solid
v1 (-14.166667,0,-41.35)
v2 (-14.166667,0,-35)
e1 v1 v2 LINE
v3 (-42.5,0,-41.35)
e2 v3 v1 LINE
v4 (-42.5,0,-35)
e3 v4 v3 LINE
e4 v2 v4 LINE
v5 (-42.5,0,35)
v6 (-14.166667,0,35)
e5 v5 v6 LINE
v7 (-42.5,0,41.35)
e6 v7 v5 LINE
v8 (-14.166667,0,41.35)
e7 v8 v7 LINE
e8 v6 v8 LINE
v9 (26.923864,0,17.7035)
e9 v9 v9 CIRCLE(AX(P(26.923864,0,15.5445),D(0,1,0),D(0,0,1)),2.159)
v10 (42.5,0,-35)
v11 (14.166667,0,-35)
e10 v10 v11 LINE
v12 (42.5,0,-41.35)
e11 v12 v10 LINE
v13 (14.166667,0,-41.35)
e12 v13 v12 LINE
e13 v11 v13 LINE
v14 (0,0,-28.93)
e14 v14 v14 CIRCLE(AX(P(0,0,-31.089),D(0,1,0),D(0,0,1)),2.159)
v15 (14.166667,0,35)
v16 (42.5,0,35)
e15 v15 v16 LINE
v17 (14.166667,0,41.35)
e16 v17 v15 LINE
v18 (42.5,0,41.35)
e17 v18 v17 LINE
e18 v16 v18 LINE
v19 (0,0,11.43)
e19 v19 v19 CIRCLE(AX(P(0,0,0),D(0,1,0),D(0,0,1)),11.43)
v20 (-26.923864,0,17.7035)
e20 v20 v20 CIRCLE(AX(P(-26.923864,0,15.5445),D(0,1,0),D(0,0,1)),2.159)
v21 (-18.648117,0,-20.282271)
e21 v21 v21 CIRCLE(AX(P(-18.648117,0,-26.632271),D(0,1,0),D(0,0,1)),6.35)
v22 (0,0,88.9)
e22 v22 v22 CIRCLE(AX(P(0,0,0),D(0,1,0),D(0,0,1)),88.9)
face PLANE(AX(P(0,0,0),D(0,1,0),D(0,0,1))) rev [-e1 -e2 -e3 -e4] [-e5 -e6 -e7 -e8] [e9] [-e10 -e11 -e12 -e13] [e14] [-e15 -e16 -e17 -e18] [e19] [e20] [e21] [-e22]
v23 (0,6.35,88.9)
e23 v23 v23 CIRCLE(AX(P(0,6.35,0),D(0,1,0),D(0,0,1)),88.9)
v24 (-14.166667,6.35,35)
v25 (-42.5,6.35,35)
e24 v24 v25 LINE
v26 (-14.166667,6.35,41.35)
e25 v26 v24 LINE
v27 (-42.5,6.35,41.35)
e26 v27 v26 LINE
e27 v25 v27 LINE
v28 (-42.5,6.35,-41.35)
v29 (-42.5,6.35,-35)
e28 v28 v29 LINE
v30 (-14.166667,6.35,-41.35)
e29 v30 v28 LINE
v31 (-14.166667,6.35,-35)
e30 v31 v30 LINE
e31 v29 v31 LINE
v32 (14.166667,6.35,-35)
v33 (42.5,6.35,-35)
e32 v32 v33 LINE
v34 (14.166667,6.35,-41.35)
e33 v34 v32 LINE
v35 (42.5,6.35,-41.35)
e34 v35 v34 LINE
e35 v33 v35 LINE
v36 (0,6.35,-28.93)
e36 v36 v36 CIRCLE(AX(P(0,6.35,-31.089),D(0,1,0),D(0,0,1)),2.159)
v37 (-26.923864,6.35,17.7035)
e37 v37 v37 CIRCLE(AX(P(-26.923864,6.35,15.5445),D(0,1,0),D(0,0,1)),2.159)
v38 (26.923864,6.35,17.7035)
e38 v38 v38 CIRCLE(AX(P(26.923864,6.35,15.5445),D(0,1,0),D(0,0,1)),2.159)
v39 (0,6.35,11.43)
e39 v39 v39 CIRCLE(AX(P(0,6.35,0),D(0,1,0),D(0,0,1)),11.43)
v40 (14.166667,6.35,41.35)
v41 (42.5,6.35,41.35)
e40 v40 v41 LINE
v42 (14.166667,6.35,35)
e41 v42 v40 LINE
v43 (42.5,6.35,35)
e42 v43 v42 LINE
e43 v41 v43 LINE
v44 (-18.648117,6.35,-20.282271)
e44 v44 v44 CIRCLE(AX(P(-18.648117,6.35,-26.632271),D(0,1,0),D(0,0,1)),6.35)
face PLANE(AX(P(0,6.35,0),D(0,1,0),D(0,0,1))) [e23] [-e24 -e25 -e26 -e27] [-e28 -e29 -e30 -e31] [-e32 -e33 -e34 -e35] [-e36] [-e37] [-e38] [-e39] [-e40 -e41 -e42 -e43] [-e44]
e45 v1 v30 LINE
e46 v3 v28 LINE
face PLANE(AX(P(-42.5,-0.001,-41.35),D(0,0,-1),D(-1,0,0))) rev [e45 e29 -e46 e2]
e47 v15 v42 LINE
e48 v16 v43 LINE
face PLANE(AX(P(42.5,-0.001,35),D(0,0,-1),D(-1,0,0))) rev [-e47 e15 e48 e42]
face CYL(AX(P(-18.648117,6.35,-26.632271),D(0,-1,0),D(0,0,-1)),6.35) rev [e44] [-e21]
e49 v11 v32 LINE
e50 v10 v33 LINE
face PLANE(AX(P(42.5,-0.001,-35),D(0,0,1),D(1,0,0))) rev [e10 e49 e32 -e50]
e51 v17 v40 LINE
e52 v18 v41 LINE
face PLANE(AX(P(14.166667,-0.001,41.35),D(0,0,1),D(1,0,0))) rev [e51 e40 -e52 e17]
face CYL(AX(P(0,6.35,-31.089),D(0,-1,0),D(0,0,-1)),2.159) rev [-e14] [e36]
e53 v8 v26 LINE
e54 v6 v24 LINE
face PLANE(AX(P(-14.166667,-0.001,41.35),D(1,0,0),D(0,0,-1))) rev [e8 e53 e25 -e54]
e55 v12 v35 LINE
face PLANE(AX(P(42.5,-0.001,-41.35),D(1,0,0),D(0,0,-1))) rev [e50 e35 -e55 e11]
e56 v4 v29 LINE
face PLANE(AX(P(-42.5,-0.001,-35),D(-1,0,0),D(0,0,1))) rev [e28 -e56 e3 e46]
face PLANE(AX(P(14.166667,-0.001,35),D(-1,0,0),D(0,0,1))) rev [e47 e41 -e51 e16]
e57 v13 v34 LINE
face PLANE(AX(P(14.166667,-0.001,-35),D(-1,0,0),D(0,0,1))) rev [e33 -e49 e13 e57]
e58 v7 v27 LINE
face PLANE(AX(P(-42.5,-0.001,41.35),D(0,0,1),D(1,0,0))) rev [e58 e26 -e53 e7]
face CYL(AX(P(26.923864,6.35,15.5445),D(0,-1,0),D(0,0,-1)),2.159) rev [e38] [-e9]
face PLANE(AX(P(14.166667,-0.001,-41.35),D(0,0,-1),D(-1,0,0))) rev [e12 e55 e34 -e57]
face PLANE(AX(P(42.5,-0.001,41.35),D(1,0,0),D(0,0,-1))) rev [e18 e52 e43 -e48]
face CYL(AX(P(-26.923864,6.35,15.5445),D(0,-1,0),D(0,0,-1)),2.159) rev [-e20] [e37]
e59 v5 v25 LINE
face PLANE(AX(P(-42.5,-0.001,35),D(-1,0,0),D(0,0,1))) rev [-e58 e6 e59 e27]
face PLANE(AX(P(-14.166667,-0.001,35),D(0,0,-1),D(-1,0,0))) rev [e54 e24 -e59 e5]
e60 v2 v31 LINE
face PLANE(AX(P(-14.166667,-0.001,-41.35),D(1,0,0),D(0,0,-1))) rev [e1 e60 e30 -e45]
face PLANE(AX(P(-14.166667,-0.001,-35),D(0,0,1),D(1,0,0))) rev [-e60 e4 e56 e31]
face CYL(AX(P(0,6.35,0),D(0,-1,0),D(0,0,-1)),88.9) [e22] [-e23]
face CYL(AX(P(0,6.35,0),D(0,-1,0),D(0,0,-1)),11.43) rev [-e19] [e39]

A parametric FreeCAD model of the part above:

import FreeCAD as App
import Part
import Sketcher
from FreeCAD import Vector
Q = App.Units.Quantity


def add_polygon(sketch, points):
    """Adds a closed chain of lines whose ends are joined by coincident constraints."""
    first, n = sketch.GeometryCount, len(points)
    for a, b in zip(points, points[1:] + points[:1]):
        sketch.addGeometry(Part.LineSegment(App.Vector(*a, 0), App.Vector(*b, 0)), False)
    for i in range(n):
        sketch.addConstraint(Sketcher.Constraint("Coincident", first + i, 2, first + (i + 1) % n, 1))

doc = App.newDocument("Part")
body = doc.addObject("PartDesign::Body", "Body")

# Sketch on XZ plane
sketch1 = body.newObject("Sketcher::SketchObject", "Sketch")
sketch1.AttachmentSupport = (doc.getObject("XZ_Plane"), [""])
sketch1.MapMode = "FlatFace"
sketch1.addGeometry(Part.Circle(Vector(0, 0, 0), Vector(0, 0, 1), 88.9), False)
sketch1.addGeometry(Part.Circle(Vector(-18.6, -26.6, 0), Vector(0, 0, 1), 6.3), False)
sketch1.addGeometry(Part.Circle(Vector(0, -31.1, 0), Vector(0, 0, 1), 2.2), False)
sketch1.addGeometry(Part.Circle(Vector(-26.9, 15.5, 0), Vector(0, 0, 1), 2.2), False)
sketch1.addGeometry(Part.Circle(Vector(0, 0, 0), Vector(0, 0, 1), 11.4), False)
sketch1.addGeometry(Part.Circle(Vector(26.9, 15.5, 0), Vector(0, 0, 1), 2.2), False)
sketch1.addConstraint(Sketcher.Constraint("Coincident", 0, 3, -1, 1))
sketch1.addConstraint(Sketcher.Constraint("Coincident", 4, 3, -1, 1))
sketch1.addConstraint(Sketcher.Constraint("Equal", 2, 3))
sketch1.addConstraint(Sketcher.Constraint("Equal", 3, 5))
sketch1.addConstraint(Sketcher.Constraint("Symmetric", 3, 3, 5, 3, -2))
sketch1.addConstraint(Sketcher.Constraint("PointOnObject", 2, 3, -2))
sketch1.addConstraint(Sketcher.Constraint("Diameter", 0, Q("7 in")))
sketch1.addConstraint(Sketcher.Constraint("Diameter", 1, Q("0.5 in")))
sketch1.addConstraint(Sketcher.Constraint("Diameter", 4, Q("0.9 in")))
sketch1.addConstraint(Sketcher.Constraint("Diameter", 2, Q("0.17 in")))
sketch1.addConstraint(Sketcher.Constraint("DistanceY", 2, 3, -1, 1, 31.089))
sketch1.addConstraint(Sketcher.Constraint("DistanceY", -1, 1, 3, 3, 15.5445))
sketch1.addConstraint(Sketcher.Constraint("DistanceY", 1, 3, -1, 1, 26.632271))
sketch1.addConstraint(Sketcher.Constraint("DistanceX", 1, 3, 5, 3, 45.571981))
sketch1.addConstraint(Sketcher.Constraint("DistanceX", 1, 3, -1, 1, 18.648117))
pad1 = body.newObject("PartDesign::Pad", "Pad")
pad1.Profile = sketch1
pad1.Length = Q("0.25 in")
pad1.Reversed = True

# Sketch on XZ plane
sketch2 = body.newObject("Sketcher::SketchObject", "Sketch001")
sketch2.AttachmentSupport = (doc.getObject("XZ_Plane"), [""])
sketch2.MapMode = "FlatFace"
sketch2.AttachmentOffset = App.Placement(Vector(0, 0, -0.25 * 25.4), App.Rotation())
add_polygon(sketch2, [(-42, -41), (-42, -35), (-14, -35), (-14, -41)])  # lines 0-3
sketch2.addConstraint(Sketcher.Constraint("Vertical", 0))
sketch2.addConstraint(Sketcher.Constraint("Horizontal", 1))
sketch2.addConstraint(Sketcher.Constraint("Vertical", 2))
sketch2.addConstraint(Sketcher.Constraint("Horizontal", 3))
sketch2.addConstraint(Sketcher.Constraint("DistanceY", 0, 1, 0, 2, Q("0.25 in")))
sketch2.addConstraint(Sketcher.Constraint("DistanceX", 0, 2, -1, 1, 42.5))
sketch2.addConstraint(Sketcher.Constraint("DistanceY", 0, 2, -1, 1, 35.0))
sketch2.addConstraint(Sketcher.Constraint("DistanceX", 1, 1, 1, 2, 28.333333))
pocket1 = body.newObject("PartDesign::Pocket", "Pocket")
pocket1.Profile = sketch2
pocket1.Type = "UpToFirst"
pocket1.Reversed = True

# Sketch on XZ plane
sketch3 = body.newObject("Sketcher::SketchObject", "Sketch002")
sketch3.AttachmentSupport = (doc.getObject("XZ_Plane"), [""])
sketch3.MapMode = "FlatFace"
sketch3.AttachmentOffset = App.Placement(Vector(0, 0, -0.25 * 25.4), App.Rotation())
add_polygon(sketch3, [(14, -41), (14, -35), (42, -35), (42, -41)])  # lines 0-3
sketch3.addConstraint(Sketcher.Constraint("Vertical", 0))
sketch3.addConstraint(Sketcher.Constraint("Horizontal", 1))
sketch3.addConstraint(Sketcher.Constraint("Vertical", 2))
sketch3.addConstraint(Sketcher.Constraint("Horizontal", 3))
sketch3.addConstraint(Sketcher.Constraint("DistanceY", 0, 1, 0, 2, Q("0.25 in")))
sketch3.addConstraint(Sketcher.Constraint("DistanceY", 0, 2, -1, 1, 35.0))
sketch3.addConstraint(Sketcher.Constraint("DistanceX", -1, 1, 1, 2, 42.5))
sketch3.addConstraint(Sketcher.Constraint("DistanceX", 1, 1, 1, 2, 28.333333))
pocket2 = body.newObject("PartDesign::Pocket", "Pocket001")
pocket2.Profile = sketch3
pocket2.Type = "UpToFirst"
pocket2.Reversed = True

# Sketch on XZ plane
sketch4 = body.newObject("Sketcher::SketchObject", "Sketch003")
sketch4.AttachmentSupport = (doc.getObject("XZ_Plane"), [""])
sketch4.MapMode = "FlatFace"
sketch4.AttachmentOffset = App.Placement(Vector(0, 0, -0.25 * 25.4), App.Rotation())
add_polygon(sketch4, [(14, 35), (14, 41), (42, 41), (42, 35)])  # lines 0-3
sketch4.addConstraint(Sketcher.Constraint("Vertical", 0))
sketch4.addConstraint(Sketcher.Constraint("Horizontal", 1))
sketch4.addConstraint(Sketcher.Constraint("Vertical", 2))
sketch4.addConstraint(Sketcher.Constraint("Horizontal", 3))
sketch4.addConstraint(Sketcher.Constraint("DistanceY", 0, 1, 0, 2, Q("0.25 in")))
sketch4.addConstraint(Sketcher.Constraint("DistanceY", -1, 1, 0, 2, 41.35))
sketch4.addConstraint(Sketcher.Constraint("DistanceX", -1, 1, 1, 2, 42.5))
sketch4.addConstraint(Sketcher.Constraint("DistanceX", 1, 1, 1, 2, 28.333333))
pocket3 = body.newObject("PartDesign::Pocket", "Pocket002")
pocket3.Profile = sketch4
pocket3.Type = "UpToFirst"
pocket3.Reversed = True

# Sketch on XZ plane
sketch5 = body.newObject("Sketcher::SketchObject", "Sketch004")
sketch5.AttachmentSupport = (doc.getObject("XZ_Plane"), [""])
sketch5.MapMode = "FlatFace"
sketch5.AttachmentOffset = App.Placement(Vector(0, 0, -0.25 * 25.4), App.Rotation())
add_polygon(sketch5, [(-42, 35), (-42, 41), (-14, 41), (-14, 35)])  # lines 0-3
sketch5.addConstraint(Sketcher.Constraint("Vertical", 0))
sketch5.addConstraint(Sketcher.Constraint("Horizontal", 1))
sketch5.addConstraint(Sketcher.Constraint("Vertical", 2))
sketch5.addConstraint(Sketcher.Constraint("Horizontal", 3))
sketch5.addConstraint(Sketcher.Constraint("DistanceY", 0, 1, 0, 2, Q("0.25 in")))
sketch5.addConstraint(Sketcher.Constraint("DistanceX", 0, 2, -1, 1, 42.5))
sketch5.addConstraint(Sketcher.Constraint("DistanceY", -1, 1, 0, 2, 41.35))
sketch5.addConstraint(Sketcher.Constraint("DistanceX", 1, 1, 1, 2, 28.333333))
pocket4 = body.newObject("PartDesign::Pocket", "Pocket003")
pocket4.Profile = sketch5
pocket4.Type = "UpToFirst"
pocket4.Reversed = True

doc.recompute()
